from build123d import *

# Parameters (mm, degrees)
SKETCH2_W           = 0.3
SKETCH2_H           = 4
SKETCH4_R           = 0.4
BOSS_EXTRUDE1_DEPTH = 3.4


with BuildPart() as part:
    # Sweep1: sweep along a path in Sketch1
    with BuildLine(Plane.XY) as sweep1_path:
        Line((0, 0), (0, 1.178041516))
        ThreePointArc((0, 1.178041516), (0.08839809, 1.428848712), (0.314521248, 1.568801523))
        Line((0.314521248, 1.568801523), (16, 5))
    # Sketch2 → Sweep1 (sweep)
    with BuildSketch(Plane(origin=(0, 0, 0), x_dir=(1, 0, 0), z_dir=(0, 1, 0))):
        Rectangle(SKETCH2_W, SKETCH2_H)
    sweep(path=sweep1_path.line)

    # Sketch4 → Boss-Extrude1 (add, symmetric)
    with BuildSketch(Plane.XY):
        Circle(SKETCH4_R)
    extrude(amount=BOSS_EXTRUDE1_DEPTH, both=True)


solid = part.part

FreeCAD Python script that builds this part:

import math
import FreeCAD as App
import Part
import Sketcher

V = App.Vector


def add_polygon(sketch, points):
    """Adds a closed chain of lines whose ends are joined by coincident constraints."""
    first, n = sketch.GeometryCount, len(points)
    for a, b in zip(points, points[1:] + points[:1]):
        sketch.addGeometry(Part.LineSegment(App.Vector(*a, 0), App.Vector(*b, 0)), False)
    for i in range(n):
        sketch.addConstraint(Sketcher.Constraint("Coincident", first + i, 2, first + (i + 1) % n, 1))

doc = App.newDocument("Part")
body = doc.addObject("PartDesign::Body", "Body")

# Sketch on XZ plane
sketch1 = doc.addObject("Sketcher::SketchObject", "Sketch")
body.addObject(sketch1)
sketch1.AttachmentSupport = (doc.XZ_Plane, [""])
sketch1.MapMode = "FlatFace"
add_polygon(sketch1, [(-0.15, -2), (-0.15, 2), (0.15, 2), (0.15, -2)])  # lines 0-3
sketch1.addConstraint(Sketcher.Constraint("Vertical", 0))
sketch1.addConstraint(Sketcher.Constraint("Horizontal", 1))
sketch1.addConstraint(Sketcher.Constraint("Vertical", 2))
sketch1.addConstraint(Sketcher.Constraint("Horizontal", 3))
sketch1.addConstraint(Sketcher.Constraint("Symmetric", 0, 2, 2, 2, -1, 1))
sketch1.addConstraint(Sketcher.Constraint("DistanceY", 0, 1, 0, 2, 4.0))
sketch1.addConstraint(Sketcher.Constraint("DistanceX", 1, 1, 1, 2, 0.3))

# Sketch on XY plane
sketch2 = doc.addObject("Sketcher::SketchObject", "Sketch001")
body.addObject(sketch2)
sketch2.AttachmentSupport = (doc.XY_Plane, [""])
sketch2.MapMode = "FlatFace"
sketch2.addGeometry(Part.LineSegment(V(0, 0, 0), V(0, 1.18, 0)), False)
sketch2.addGeometry(Part.ArcOfCircle(Part.Circle(V(0.4, 1.18, 0), V(0, 0, 1), 0.4), math.radians(102), math.radians(180)), False)
sketch2.addGeometry(Part.LineSegment(V(0.31, 1.57, 0), V(16, 5, 0)), False)
sketch2.addConstraint(Sketcher.Constraint("Tangent", 0, 2, 1, 2))
sketch2.addConstraint(Sketcher.Constraint("Tangent", 1, 1, 2, 1))
sketch2.addConstraint(Sketcher.Constraint("Vertical", 0))
sketch2.addConstraint(Sketcher.Constraint("Coincident", 0, 1, -1, 1))
sketch2.addConstraint(Sketcher.Constraint("Radius", 1, 0.4))
sketch2.addConstraint(Sketcher.Constraint("DistanceX", -1, 1, 2, 2, 16.0))
sketch2.addConstraint(Sketcher.Constraint("DistanceY", -1, 1, 2, 2, 5.0))
sketch2.addConstraint(Sketcher.Constraint("DistanceY", 0, 1, 0, 2, 1.178042))
doc.recompute()

additivepipe = doc.addObject("PartDesign::AdditivePipe", "AdditivePipe")
body.addObject(additivepipe)
additivepipe.Profile = sketch1
additivepipe.Spine = (sketch2, ["Edge1", "Edge2", "Edge3"])

# Sketch on XY plane
sketch3 = doc.addObject("Sketcher::SketchObject", "Sketch002")
body.addObject(sketch3)
sketch3.AttachmentSupport = (doc.XY_Plane, [""])
sketch3.MapMode = "FlatFace"
sketch3.addGeometry(Part.Circle(V(0, 0, 0), V(0, 0, 1), 0.4), False)
sketch3.addConstraint(Sketcher.Constraint("Coincident", 0, 3, -1, 1))
sketch3.addConstraint(Sketcher.Constraint("Diameter", 0, 0.8))
pad1 = doc.addObject("PartDesign::Pad", "Pad")
body.addObject(pad1)
pad1.Profile = sketch3
pad1.Length = 6.8
pad1.Midplane = True

doc.recompute()
